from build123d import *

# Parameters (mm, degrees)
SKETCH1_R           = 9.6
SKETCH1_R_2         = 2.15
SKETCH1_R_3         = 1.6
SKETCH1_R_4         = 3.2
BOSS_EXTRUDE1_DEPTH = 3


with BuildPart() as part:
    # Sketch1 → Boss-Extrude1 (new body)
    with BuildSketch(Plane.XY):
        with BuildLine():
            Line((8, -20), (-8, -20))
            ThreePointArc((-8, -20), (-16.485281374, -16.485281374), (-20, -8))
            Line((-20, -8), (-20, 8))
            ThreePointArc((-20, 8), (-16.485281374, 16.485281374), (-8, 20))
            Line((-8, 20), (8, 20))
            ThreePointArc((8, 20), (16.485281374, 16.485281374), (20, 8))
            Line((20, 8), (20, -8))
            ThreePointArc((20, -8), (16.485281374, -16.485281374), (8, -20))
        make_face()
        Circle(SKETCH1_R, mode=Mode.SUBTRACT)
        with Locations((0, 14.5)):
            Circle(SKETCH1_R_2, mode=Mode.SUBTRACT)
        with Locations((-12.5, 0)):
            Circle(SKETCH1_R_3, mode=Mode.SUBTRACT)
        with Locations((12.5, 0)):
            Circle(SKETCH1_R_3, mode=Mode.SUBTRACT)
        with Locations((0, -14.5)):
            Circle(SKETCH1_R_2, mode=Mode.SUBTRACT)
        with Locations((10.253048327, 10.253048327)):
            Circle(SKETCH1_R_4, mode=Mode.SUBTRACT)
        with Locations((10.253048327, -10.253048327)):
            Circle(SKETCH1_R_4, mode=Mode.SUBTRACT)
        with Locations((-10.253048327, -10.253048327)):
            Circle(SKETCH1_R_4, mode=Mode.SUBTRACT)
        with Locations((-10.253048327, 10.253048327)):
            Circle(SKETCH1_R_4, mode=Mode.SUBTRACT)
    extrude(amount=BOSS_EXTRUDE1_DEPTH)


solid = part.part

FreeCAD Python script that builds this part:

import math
import FreeCAD as App
import Part
import Sketcher

V = App.Vector

doc = App.newDocument("Part")
body = doc.addObject("PartDesign::Body", "Body")

# Sketch on XY plane
sketch1 = doc.addObject("Sketcher::SketchObject", "Sketch")
body.addObject(sketch1)
sketch1.AttachmentSupport = (doc.XY_Plane, [""])
sketch1.MapMode = "FlatFace"
sketch1.addGeometry(Part.LineSegment(V(-8, -20, 0), V(8, -20, 0)), False)
sketch1.addGeometry(Part.ArcOfCircle(Part.Circle(V(8, -8, 0), V(0, 0, 1), 12), math.radians(-90), math.radians(0)), False)
sketch1.addGeometry(Part.LineSegment(V(20, -8, 0), V(20, 8, 0)), False)
sketch1.addGeometry(Part.ArcOfCircle(Part.Circle(V(8, 8, 0), V(0, 0, 1), 12), math.radians(0), math.radians(90)), False)
sketch1.addGeometry(Part.LineSegment(V(8, 20, 0), V(-8, 20, 0)), False)
sketch1.addGeometry(Part.ArcOfCircle(Part.Circle(V(-8, 8, 0), V(0, 0, 1), 12), math.radians(90), math.radians(180)), False)
sketch1.addGeometry(Part.LineSegment(V(-20, 8, 0), V(-20, -8, 0)), False)
sketch1.addGeometry(Part.ArcOfCircle(Part.Circle(V(-8, -8, 0), V(0, 0, 1), 12), math.radians(-180), math.radians(-90)), False)
sketch1.addGeometry(Part.Circle(V(10.3, -10.3, 0), V(0, 0, 1), 3.2), False)
sketch1.addGeometry(Part.Circle(V(0, -14.5, 0), V(0, 0, 1), 2.1), False)
sketch1.addGeometry(Part.Circle(V(-10.3, -10.3, 0), V(0, 0, 1), 3.2), False)
sketch1.addGeometry(Part.Circle(V(12.5, 0, 0), V(0, 0, 1), 1.6), False)
sketch1.addGeometry(Part.Circle(V(10.3, 10.3, 0), V(0, 0, 1), 3.2), False)
sketch1.addGeometry(Part.Circle(V(0, 0, 0), V(0, 0, 1), 9.6), False)
sketch1.addGeometry(Part.Circle(V(-12.5, 0, 0), V(0, 0, 1), 1.6), False)
sketch1.addGeometry(Part.Circle(V(0, 14.5, 0), V(0, 0, 1), 2.1), False)
sketch1.addGeometry(Part.Circle(V(-10.3, 10.3, 0), V(0, 0, 1), 3.2), False)
sketch1.addConstraint(Sketcher.Constraint("Tangent", 0, 2, 1, 1))
sketch1.addConstraint(Sketcher.Constraint("Tangent", 1, 2, 2, 1))
sketch1.addConstraint(Sketcher.Constraint("Tangent", 2, 2, 3, 1))
sketch1.addConstraint(Sketcher.Constraint("Tangent", 3, 2, 4, 1))
sketch1.addConstraint(Sketcher.Constraint("Tangent", 4, 2, 5, 1))
sketch1.addConstraint(Sketcher.Constraint("Tangent", 5, 2, 6, 1))
sketch1.addConstraint(Sketcher.Constraint("Tangent", 6, 2, 7, 1))
sketch1.addConstraint(Sketcher.Constraint("Tangent", 7, 2, 0, 1))
sketch1.addConstraint(Sketcher.Constraint("Horizontal", 0))
sketch1.addConstraint(Sketcher.Constraint("Vertical", 2))
sketch1.addConstraint(Sketcher.Constraint("Horizontal", 4))
sketch1.addConstraint(Sketcher.Constraint("Vertical", 6))
sketch1.addConstraint(Sketcher.Constraint("Coincident", 13, 3, -1, 1))
sketch1.addConstraint(Sketcher.Constraint("Equal", 1, 3))
sketch1.addConstraint(Sketcher.Constraint("Equal", 3, 5))
sketch1.addConstraint(Sketcher.Constraint("Equal", 5, 7))
sketch1.addConstraint(Sketcher.Constraint("Equal", 8, 10))
sketch1.addConstraint(Sketcher.Constraint("Equal", 10, 12))
sketch1.addConstraint(Sketcher.Constraint("Equal", 11, 14))
sketch1.addConstraint(Sketcher.Constraint("Equal", 9, 15))
sketch1.addConstraint(Sketcher.Constraint("Equal", 12, 16))
sketch1.addConstraint(Sketcher.Constraint("Symmetric", 1, 3, 5, 3, -1, 1))
sketch1.addConstraint(Sketcher.Constraint("Symmetric", 10, 3, 12, 3, -1, 1))
sketch1.addConstraint(Sketcher.Constraint("Symmetric", 11, 3, 14, 3, -1, 1))
sketch1.addConstraint(Sketcher.Constraint("Symmetric", 9, 3, 15, 3, -1, 1))
sketch1.addConstraint(Sketcher.Constraint("Symmetric", 8, 3, 16, 3, -1, 1))
sketch1.addConstraint(Sketcher.Constraint("Symmetric", 8, 3, 10, 3, -2))
sketch1.addConstraint(Sketcher.Constraint("PointOnObject", 9, 3, -2))
sketch1.addConstraint(Sketcher.Constraint("PointOnObject", 11, 3, -1))
sketch1.addConstraint(Sketcher.Constraint("Equal", 4, 2))
sketch1.addConstraint(Sketcher.Constraint("Radius", 1, 12.0))
sketch1.addConstraint(Sketcher.Constraint("Diameter", 8, 6.4))
sketch1.addConstraint(Sketcher.Constraint("Diameter", 9, 4.3))
sketch1.addConstraint(Sketcher.Constraint("Diameter", 11, 3.2))
sketch1.addConstraint(Sketcher.Constraint("Diameter", 13, 19.2))
sketch1.addConstraint(Sketcher.Constraint("DistanceX", 0, 1, 0, 2, 16.0))
sketch1.addConstraint(Sketcher.Constraint("DistanceY", 9, 3, -1, 1, 14.5))
sketch1.addConstraint(Sketcher.Constraint("DistanceX", -1, 1, 11, 3, 12.5))
sketch1.addConstraint(Sketcher.Constraint("DistanceX", -1, 1, 8, 3, 10.253048))
sketch1.addConstraint(Sketcher.Constraint("DistanceY", 8, 3, -1, 1, 10.253048))
pad1 = doc.addObject("PartDesign::Pad", "Pad")
body.addObject(pad1)
pad1.Profile = sketch1
pad1.Length = 3

doc.recompute()
